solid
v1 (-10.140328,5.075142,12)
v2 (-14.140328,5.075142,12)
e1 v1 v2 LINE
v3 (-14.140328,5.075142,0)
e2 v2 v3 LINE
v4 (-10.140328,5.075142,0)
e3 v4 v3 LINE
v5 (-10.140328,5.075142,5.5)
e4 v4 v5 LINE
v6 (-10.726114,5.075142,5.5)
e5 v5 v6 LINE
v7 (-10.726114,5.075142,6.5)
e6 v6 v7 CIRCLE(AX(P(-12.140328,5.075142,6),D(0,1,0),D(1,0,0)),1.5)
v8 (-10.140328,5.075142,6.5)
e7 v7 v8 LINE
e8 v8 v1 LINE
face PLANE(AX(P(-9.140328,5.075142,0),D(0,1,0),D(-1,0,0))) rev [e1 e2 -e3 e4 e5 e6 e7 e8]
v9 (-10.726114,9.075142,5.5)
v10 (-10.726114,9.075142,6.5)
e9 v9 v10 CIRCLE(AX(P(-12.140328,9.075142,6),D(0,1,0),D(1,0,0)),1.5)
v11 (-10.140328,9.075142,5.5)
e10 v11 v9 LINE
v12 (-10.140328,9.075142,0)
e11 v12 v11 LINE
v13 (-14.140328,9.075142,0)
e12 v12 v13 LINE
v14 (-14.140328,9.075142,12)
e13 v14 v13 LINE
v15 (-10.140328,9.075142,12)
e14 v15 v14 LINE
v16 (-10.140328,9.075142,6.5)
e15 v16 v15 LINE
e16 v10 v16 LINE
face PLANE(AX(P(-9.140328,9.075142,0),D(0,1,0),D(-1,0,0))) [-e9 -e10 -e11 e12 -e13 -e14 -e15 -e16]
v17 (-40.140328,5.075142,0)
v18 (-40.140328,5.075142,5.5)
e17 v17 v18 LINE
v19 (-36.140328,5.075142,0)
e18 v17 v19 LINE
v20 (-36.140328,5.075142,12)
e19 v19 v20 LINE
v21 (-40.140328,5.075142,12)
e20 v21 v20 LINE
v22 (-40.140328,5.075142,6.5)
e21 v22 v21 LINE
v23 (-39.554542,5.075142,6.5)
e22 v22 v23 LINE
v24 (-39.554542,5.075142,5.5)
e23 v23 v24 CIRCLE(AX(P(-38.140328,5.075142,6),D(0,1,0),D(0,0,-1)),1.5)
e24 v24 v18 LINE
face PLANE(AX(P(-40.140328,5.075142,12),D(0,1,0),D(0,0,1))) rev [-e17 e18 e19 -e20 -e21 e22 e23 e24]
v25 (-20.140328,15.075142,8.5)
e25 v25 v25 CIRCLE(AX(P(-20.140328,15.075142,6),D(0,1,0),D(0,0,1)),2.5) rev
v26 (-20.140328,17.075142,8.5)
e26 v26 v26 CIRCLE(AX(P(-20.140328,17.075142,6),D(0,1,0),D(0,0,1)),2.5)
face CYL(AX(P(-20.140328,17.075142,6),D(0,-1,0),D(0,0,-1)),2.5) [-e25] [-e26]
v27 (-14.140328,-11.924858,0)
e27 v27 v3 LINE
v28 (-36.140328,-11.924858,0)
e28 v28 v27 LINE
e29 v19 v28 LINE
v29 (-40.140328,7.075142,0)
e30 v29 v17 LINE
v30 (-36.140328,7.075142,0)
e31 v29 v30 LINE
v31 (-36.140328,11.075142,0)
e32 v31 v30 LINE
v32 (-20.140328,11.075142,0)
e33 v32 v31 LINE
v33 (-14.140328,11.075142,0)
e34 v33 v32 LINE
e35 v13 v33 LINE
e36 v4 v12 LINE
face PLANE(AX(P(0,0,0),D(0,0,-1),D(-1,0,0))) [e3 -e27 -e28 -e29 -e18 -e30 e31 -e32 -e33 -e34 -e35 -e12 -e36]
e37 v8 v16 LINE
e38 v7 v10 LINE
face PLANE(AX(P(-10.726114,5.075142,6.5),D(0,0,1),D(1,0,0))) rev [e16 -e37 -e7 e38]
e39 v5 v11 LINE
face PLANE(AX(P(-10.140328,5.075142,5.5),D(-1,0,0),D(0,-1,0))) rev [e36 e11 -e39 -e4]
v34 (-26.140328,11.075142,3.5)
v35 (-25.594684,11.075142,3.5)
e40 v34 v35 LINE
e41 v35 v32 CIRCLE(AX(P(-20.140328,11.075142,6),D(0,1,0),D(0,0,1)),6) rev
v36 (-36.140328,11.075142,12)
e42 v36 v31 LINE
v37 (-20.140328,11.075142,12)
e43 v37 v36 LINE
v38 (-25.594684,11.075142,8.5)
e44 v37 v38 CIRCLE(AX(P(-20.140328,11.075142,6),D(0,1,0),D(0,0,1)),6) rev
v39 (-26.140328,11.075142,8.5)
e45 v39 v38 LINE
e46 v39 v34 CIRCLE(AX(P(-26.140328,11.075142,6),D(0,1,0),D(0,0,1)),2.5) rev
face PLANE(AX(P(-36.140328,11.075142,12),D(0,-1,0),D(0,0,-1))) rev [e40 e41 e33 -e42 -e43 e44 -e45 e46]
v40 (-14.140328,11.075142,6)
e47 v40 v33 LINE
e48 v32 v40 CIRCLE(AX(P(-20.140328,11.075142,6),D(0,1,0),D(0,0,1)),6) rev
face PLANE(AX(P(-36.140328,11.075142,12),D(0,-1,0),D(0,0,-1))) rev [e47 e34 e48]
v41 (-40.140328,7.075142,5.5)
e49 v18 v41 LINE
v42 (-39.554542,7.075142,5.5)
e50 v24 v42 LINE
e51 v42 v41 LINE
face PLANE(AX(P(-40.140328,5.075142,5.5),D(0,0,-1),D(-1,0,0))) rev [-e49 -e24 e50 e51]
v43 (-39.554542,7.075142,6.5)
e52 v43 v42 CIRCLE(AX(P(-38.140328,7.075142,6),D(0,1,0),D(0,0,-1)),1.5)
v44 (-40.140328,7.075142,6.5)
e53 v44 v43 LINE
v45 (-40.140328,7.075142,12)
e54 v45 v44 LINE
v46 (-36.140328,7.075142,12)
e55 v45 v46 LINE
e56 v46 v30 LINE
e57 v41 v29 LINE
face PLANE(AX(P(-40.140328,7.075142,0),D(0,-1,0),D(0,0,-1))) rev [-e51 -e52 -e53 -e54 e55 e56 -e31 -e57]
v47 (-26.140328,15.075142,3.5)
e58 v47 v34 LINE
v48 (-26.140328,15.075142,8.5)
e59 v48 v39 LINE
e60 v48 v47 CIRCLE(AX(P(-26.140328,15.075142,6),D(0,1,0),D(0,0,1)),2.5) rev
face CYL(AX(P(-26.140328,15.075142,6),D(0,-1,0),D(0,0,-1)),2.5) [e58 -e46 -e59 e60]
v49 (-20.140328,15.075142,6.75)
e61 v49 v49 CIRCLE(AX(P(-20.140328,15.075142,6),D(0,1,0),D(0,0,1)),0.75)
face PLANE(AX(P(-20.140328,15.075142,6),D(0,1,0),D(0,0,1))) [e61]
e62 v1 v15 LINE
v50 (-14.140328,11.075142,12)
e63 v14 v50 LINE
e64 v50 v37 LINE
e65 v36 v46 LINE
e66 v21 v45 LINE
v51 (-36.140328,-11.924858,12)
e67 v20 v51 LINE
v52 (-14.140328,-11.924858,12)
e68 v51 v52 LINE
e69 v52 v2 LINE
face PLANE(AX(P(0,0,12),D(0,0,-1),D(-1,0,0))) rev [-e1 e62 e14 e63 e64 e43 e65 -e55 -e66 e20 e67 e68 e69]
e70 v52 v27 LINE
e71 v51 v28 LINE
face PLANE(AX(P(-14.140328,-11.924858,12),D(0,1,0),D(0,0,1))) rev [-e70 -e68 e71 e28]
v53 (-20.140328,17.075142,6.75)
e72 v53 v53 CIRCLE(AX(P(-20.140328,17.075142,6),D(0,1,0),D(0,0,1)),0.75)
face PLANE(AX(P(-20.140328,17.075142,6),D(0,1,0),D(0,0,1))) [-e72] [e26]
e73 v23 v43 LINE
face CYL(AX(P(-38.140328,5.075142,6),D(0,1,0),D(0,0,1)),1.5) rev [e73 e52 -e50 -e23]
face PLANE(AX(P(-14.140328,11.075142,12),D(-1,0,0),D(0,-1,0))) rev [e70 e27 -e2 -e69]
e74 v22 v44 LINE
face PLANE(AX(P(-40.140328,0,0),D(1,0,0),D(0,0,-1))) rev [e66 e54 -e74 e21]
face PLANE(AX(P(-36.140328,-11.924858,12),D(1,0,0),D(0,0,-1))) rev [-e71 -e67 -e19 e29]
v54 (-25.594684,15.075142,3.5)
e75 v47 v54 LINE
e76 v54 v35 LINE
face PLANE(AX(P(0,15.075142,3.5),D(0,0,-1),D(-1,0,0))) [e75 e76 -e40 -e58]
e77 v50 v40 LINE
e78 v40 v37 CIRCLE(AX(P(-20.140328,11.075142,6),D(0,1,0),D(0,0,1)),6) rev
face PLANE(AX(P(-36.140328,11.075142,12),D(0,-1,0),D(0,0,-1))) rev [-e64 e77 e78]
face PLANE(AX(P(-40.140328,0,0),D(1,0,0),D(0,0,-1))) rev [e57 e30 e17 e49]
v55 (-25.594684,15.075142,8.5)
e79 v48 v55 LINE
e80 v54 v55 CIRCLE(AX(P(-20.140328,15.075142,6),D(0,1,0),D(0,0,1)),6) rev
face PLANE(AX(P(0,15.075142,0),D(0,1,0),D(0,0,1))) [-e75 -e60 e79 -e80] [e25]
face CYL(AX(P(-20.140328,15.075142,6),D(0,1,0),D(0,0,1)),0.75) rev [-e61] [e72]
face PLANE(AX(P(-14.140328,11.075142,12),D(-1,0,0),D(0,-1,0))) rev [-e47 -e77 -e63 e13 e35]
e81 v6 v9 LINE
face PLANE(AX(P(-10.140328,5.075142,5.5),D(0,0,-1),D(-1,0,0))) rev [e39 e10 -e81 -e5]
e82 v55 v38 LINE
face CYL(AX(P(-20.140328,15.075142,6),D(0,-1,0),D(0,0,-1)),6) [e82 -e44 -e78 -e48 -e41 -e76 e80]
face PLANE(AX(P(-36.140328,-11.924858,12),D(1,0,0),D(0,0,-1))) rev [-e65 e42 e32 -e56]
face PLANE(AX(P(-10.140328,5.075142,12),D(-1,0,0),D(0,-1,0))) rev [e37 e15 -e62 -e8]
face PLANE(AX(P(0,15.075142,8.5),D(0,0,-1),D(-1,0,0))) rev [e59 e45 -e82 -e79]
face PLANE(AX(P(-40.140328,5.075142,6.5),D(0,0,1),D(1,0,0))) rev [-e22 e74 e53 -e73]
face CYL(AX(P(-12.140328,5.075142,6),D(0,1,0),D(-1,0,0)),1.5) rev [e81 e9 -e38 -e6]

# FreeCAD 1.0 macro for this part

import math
import FreeCAD as App
import Part
import Sketcher

doc = App.newDocument("Part")
body = doc.addObject("PartDesign::Body", "Body")

# Sketch on XY plane
sketch1 = body.newObject("Sketcher::SketchObject", "Sketch")
sketch1.AttachmentSupport = (doc.getObject("XY_Plane"), [""])
sketch1.MapMode = "FlatFace"
sketch1.addGeometry(Part.LineSegment(App.Vector(-36, 11, 0), App.Vector(-36, -12, 0)), False)
sketch1.addGeometry(Part.LineSegment(App.Vector(-36, -12, 0), App.Vector(-14, -12, 0)), False)
sketch1.addGeometry(Part.LineSegment(App.Vector(-14, -12, 0), App.Vector(-14, 11, 0)), False)
sketch1.addGeometry(Part.LineSegment(App.Vector(-14, 11, 0), App.Vector(-36, 11, 0)), False)
sketch1.addConstraint(Sketcher.Constraint("Coincident", 0, 2, 1, 1))
sketch1.addConstraint(Sketcher.Constraint("Coincident", 1, 2, 2, 1))
sketch1.addConstraint(Sketcher.Constraint("Coincident", 2, 2, 3, 1))
sketch1.addConstraint(Sketcher.Constraint("Coincident", 3, 2, 0, 1))
sketch1.addConstraint(Sketcher.Constraint("Vertical", 0))
sketch1.addConstraint(Sketcher.Constraint("Horizontal", 1))
sketch1.addConstraint(Sketcher.Constraint("Vertical", 2))
sketch1.addConstraint(Sketcher.Constraint("Horizontal", 3))
sketch1.addConstraint(Sketcher.Constraint("DistanceX", 1, 1, 1, 2, 22.0))
sketch1.addConstraint(Sketcher.Constraint("DistanceY", 0, 2, 0, 1, 23.0))
sketch1.addConstraint(Sketcher.Constraint("DistanceX", 0, 2, -1, 1, 36.140328))
sketch1.addConstraint(Sketcher.Constraint("DistanceY", 0, 2, -1, 1, 11.924858))
pad1 = body.newObject("PartDesign::Pad", "Pad")
pad1.Profile = sketch1
pad1.Length = 12

# Sketch on YZ plane
sketch2 = body.newObject("Sketcher::SketchObject", "Sketch001")
sketch2.AttachmentSupport = (doc.getObject("YZ_Plane"), [""])
sketch2.MapMode = "FlatFace"
sketch2.AttachmentOffset = App.Placement(App.Vector(0, 0, -14.140328), App.Rotation())
sketch2.addGeometry(Part.LineSegment(App.Vector(7.1, 12, 0), App.Vector(5.1, 12, 0)), False)
sketch2.addGeometry(Part.LineSegment(App.Vector(5.1, 12, 0), App.Vector(5.1, 0, 0)), False)
sketch2.addGeometry(Part.LineSegment(App.Vector(5.1, 0, 0), App.Vector(7.1, 0, 0)), False)
sketch2.addGeometry(Part.LineSegment(App.Vector(7.1, 0, 0), App.Vector(7.1, 12, 0)), False)
sketch2.addConstraint(Sketcher.Constraint("Coincident", 0, 2, 1, 1))
sketch2.addConstraint(Sketcher.Constraint("Coincident", 1, 2, 2, 1))
sketch2.addConstraint(Sketcher.Constraint("Coincident", 2, 2, 3, 1))
sketch2.addConstraint(Sketcher.Constraint("Coincident", 3, 2, 0, 1))
sketch2.addConstraint(Sketcher.Constraint("Horizontal", 0))
sketch2.addConstraint(Sketcher.Constraint("Vertical", 1))
sketch2.addConstraint(Sketcher.Constraint("Horizontal", 2))
sketch2.addConstraint(Sketcher.Constraint("Vertical", 3))
sketch2.addConstraint(Sketcher.Constraint("PointOnObject", 1, 2, -1))
sketch2.addConstraint(Sketcher.Constraint("DistanceX", 0, 2, 0, 1, 2.0))
sketch2.addConstraint(Sketcher.Constraint("DistanceY", 1, 2, 1, 1, 12.0))
sketch2.addConstraint(Sketcher.Constraint("DistanceX", -1, 1, 0, 2, 5.075142))
pad2 = body.newObject("PartDesign::Pad", "Pad001")
pad2.Profile = sketch2
pad2.Length = 5

# Sketch on XZ plane
sketch3 = body.newObject("Sketcher::SketchObject", "Sketch002")
sketch3.AttachmentSupport = (doc.getObject("XZ_Plane"), [""])
sketch3.MapMode = "FlatFace"
sketch3.AttachmentOffset = App.Placement(App.Vector(0, 0, -7.075142), App.Rotation())
sketch3.addGeometry(Part.LineSegment(App.Vector(-10.1, 5.5, 0), App.Vector(-10.7, 5.5, 0)), False)
sketch3.addGeometry(Part.ArcOfCircle(Part.Circle(App.Vector(-12.1, 6, 0), App.Vector(0, 0, 1), 1.5), math.radians(19), math.radians(341)), False)
sketch3.addGeometry(Part.LineSegment(App.Vector(-10.7, 6.5, 0), App.Vector(-10.1, 6.5, 0)), False)
sketch3.addGeometry(Part.LineSegment(App.Vector(-10.1, 6.5, 0), App.Vector(-10.1, 12, 0)), False)
sketch3.addGeometry(Part.LineSegment(App.Vector(-10.1, 12, 0), App.Vector(-9.1, 12, 0)), False)
sketch3.addGeometry(Part.LineSegment(App.Vector(-9.1, 12, 0), App.Vector(-9.1, 0, 0)), False)
sketch3.addGeometry(Part.LineSegment(App.Vector(-9.1, 0, 0), App.Vector(-10.1, 0, 0)), False)
sketch3.addGeometry(Part.LineSegment(App.Vector(-10.1, 0, 0), App.Vector(-10.1, 5.5, 0)), False)
sketch3.addConstraint(Sketcher.Constraint("Coincident", 0, 2, 1, 2))
sketch3.addConstraint(Sketcher.Constraint("Coincident", 1, 1, 2, 1))
sketch3.addConstraint(Sketcher.Constraint("Coincident", 2, 2, 3, 1))
sketch3.addConstraint(Sketcher.Constraint("Coincident", 3, 2, 4, 1))
sketch3.addConstraint(Sketcher.Constraint("Coincident", 4, 2, 5, 1))
sketch3.addConstraint(Sketcher.Constraint("Coincident", 5, 2, 6, 1))
sketch3.addConstraint(Sketcher.Constraint("Coincident", 6, 2, 7, 1))
sketch3.addConstraint(Sketcher.Constraint("Coincident", 7, 2, 0, 1))
sketch3.addConstraint(Sketcher.Constraint("Horizontal", 0))
sketch3.addConstraint(Sketcher.Constraint("Horizontal", 2))
sketch3.addConstraint(Sketcher.Constraint("Vertical", 3))
sketch3.addConstraint(Sketcher.Constraint("Horizontal", 4))
sketch3.addConstraint(Sketcher.Constraint("Vertical", 5))
sketch3.addConstraint(Sketcher.Constraint("Horizontal", 6))
sketch3.addConstraint(Sketcher.Constraint("Vertical", 7))
sketch3.addConstraint(Sketcher.Constraint("PointOnObject", 5, 2, -1))
sketch3.addConstraint(Sketcher.Constraint("Vertical", 0, 2, 1, 1))
sketch3.addConstraint(Sketcher.Constraint("Vertical", 3, 2, 6, 2))
sketch3.addConstraint(Sketcher.Constraint("Equal", 3, 7))
sketch3.addConstraint(Sketcher.Constraint("Radius", 1, 1.5))
sketch3.addConstraint(Sketcher.Constraint("DistanceX", 4, 1, 4, 2, 1.0))
sketch3.addConstraint(Sketcher.Constraint("DistanceY", 5, 2, 5, 1, 12.0))
sketch3.addConstraint(Sketcher.Constraint("DistanceY", 3, 1, 3, 2, 5.5))
sketch3.addConstraint(Sketcher.Constraint("DistanceX", 1, 3, 2, 2, 2.0))
sketch3.addConstraint(Sketcher.Constraint("DistanceX", 1, 3, -1, 1, 12.140328))
pocket1 = body.newObject("PartDesign::Pocket", "Pocket")
pocket1.Profile = sketch3
pocket1.Length = 2
pocket1.Reversed = True
doc.recompute()

datumplane = body.newObject("PartDesign::Plane", "DatumPlane")
datumplane.AttachmentSupport = (doc.getObject("XZ_Plane"), [""])
datumplane.MapMode = "FlatFace"
datumplane.AttachmentOffset = App.Placement(App.Vector(0, 0, -7.075142), App.Rotation())
mirrored = body.newObject("PartDesign::Mirrored", "Mirrored")
mirrored.Originals = [pad2, pocket1]
mirrored.MirrorPlane = (datumplane, [""])
body.Tip = mirrored

# Sketch on YZ plane
sketch4 = body.newObject("Sketcher::SketchObject", "Sketch003")
sketch4.AttachmentSupport = (doc.getObject("YZ_Plane"), [""])
sketch4.MapMode = "FlatFace"
sketch4.AttachmentOffset = App.Placement(App.Vector(0, 0, -36.140328), App.Rotation())
sketch4.addGeometry(Part.LineSegment(App.Vector(7.1, 0, 0), App.Vector(5.1, 0, 0)), False)
sketch4.addGeometry(Part.LineSegment(App.Vector(5.1, 0, 0), App.Vector(5.1, 12, 0)), False)
sketch4.addGeometry(Part.LineSegment(App.Vector(5.1, 12, 0), App.Vector(7.1, 12, 0)), False)
sketch4.addGeometry(Part.LineSegment(App.Vector(7.1, 12, 0), App.Vector(7.1, 0, 0)), False)
sketch4.addConstraint(Sketcher.Constraint("Coincident", 0, 2, 1, 1))
sketch4.addConstraint(Sketcher.Constraint("Coincident", 1, 2, 2, 1))
sketch4.addConstraint(Sketcher.Constraint("Coincident", 2, 2, 3, 1))
sketch4.addConstraint(Sketcher.Constraint("Coincident", 3, 2, 0, 1))
sketch4.addConstraint(Sketcher.Constraint("Horizontal", 0))
sketch4.addConstraint(Sketcher.Constraint("Vertical", 1))
sketch4.addConstraint(Sketcher.Constraint("Horizontal", 2))
sketch4.addConstraint(Sketcher.Constraint("Vertical", 3))
sketch4.addConstraint(Sketcher.Constraint("PointOnObject", 0, 2, -1))
sketch4.addConstraint(Sketcher.Constraint("DistanceX", 0, 2, 0, 1, 2.0))
sketch4.addConstraint(Sketcher.Constraint("DistanceY", 1, 1, 1, 2, 12.0))
sketch4.addConstraint(Sketcher.Constraint("DistanceX", -1, 1, 0, 2, 5.075142))
pad3 = body.newObject("PartDesign::Pad", "Pad002")
pad3.Profile = sketch4
pad3.Length = 4
pad3.Reversed = True

# Sketch on XZ plane
sketch5 = body.newObject("Sketcher::SketchObject", "Sketch004")
sketch5.AttachmentSupport = (doc.getObject("XZ_Plane"), [""])
sketch5.MapMode = "FlatFace"
sketch5.AttachmentOffset = App.Placement(App.Vector(0, 0, -7.075142), App.Rotation())
sketch5.addGeometry(Part.LineSegment(App.Vector(-40.1, 5.5, 0), App.Vector(-40.1, 6.5, 0)), False)
sketch5.addGeometry(Part.LineSegment(App.Vector(-40.1, 6.5, 0), App.Vector(-39.6, 6.5, 0)), False)
sketch5.addGeometry(Part.ArcOfCircle(Part.Circle(App.Vector(-38.1, 6, 0), App.Vector(0, 0, 1), 1.5), math.radians(-161), math.radians(161)), False)
sketch5.addGeometry(Part.LineSegment(App.Vector(-39.6, 5.5, 0), App.Vector(-40.1, 5.5, 0)), False)
sketch5.addConstraint(Sketcher.Constraint("Coincident", 0, 2, 1, 1))
sketch5.addConstraint(Sketcher.Constraint("Coincident", 1, 2, 2, 2))
sketch5.addConstraint(Sketcher.Constraint("Coincident", 2, 1, 3, 1))
sketch5.addConstraint(Sketcher.Constraint("Coincident", 3, 2, 0, 1))
sketch5.addConstraint(Sketcher.Constraint("Vertical", 0))
sketch5.addConstraint(Sketcher.Constraint("Horizontal", 1))
sketch5.addConstraint(Sketcher.Constraint("Horizontal", 3))
sketch5.addConstraint(Sketcher.Constraint("Vertical", 1, 2, 2, 1))
sketch5.addConstraint(Sketcher.Constraint("Radius", 2, 1.5))
sketch5.addConstraint(Sketcher.Constraint("DistanceY", 0, 1, 0, 2, 1.0))
sketch5.addConstraint(Sketcher.Constraint("DistanceY", -1, 1, 2, 3, 6.0))
sketch5.addConstraint(Sketcher.Constraint("DistanceX", 0, 2, 2, 3, 2.0))
sketch5.addConstraint(Sketcher.Constraint("DistanceX", 1, 2, -1, 1, 39.554542))
pocket2 = body.newObject("PartDesign::Pocket", "Pocket001")
pocket2.Profile = sketch5
pocket2.Length = 2
pocket2.Reversed = True

# Sketch on XZ plane
sketch6 = body.newObject("Sketcher::SketchObject", "Sketch005")
sketch6.AttachmentSupport = (doc.getObject("XZ_Plane"), [""])
sketch6.MapMode = "FlatFace"
sketch6.AttachmentOffset = App.Placement(App.Vector(0, 0, -11.075142), App.Rotation())
sketch6.addGeometry(Part.ArcOfCircle(Part.Circle(App.Vector(-20.1, 6, 0), App.Vector(0, 0, 1), 6), math.radians(-155), math.radians(155)), False)
sketch6.addGeometry(Part.LineSegment(App.Vector(-25.6, 3.5, 0), App.Vector(-26.1, 3.5, 0)), False)
sketch6.addGeometry(Part.ArcOfCircle(Part.Circle(App.Vector(-26.1, 6, 0), App.Vector(0, 0, 1), 2.5), math.radians(90), math.radians(270)), False)
sketch6.addGeometry(Part.LineSegment(App.Vector(-26.1, 8.5, 0), App.Vector(-25.6, 8.5, 0)), False)
sketch6.addConstraint(Sketcher.Constraint("Coincident", 0, 1, 1, 1))
sketch6.addConstraint(Sketcher.Constraint("Tangent", 1, 2, 2, 2))
sketch6.addConstraint(Sketcher.Constraint("Tangent", 2, 1, 3, 1))
sketch6.addConstraint(Sketcher.Constraint("Coincident", 3, 2, 0, 2))
sketch6.addConstraint(Sketcher.Constraint("Horizontal", 1))
sketch6.addConstraint(Sketcher.Constraint("Horizontal", 3))
sketch6.addConstraint(Sketcher.Constraint("Horizontal", 0, 3, 2, 3))
sketch6.addConstraint(Sketcher.Constraint("Radius", 0, 6.0))
sketch6.addConstraint(Sketcher.Constraint("Radius", 2, 2.5))
sketch6.addConstraint(Sketcher.Constraint("DistanceY", -1, 1, 0, 3, 6.0))
sketch6.addConstraint(Sketcher.Constraint("DistanceX", 2, 3, 0, 3, 6.0))
sketch6.addConstraint(Sketcher.Constraint("DistanceX", 0, 3, -1, 1, 20.140328))
pad4 = body.newObject("PartDesign::Pad", "Pad003")
pad4.Profile = sketch6
pad4.Length = 4
pad4.Reversed = True

# Sketch on XZ plane
sketch7 = body.newObject("Sketcher::SketchObject", "Sketch006")
sketch7.AttachmentSupport = (doc.getObject("XZ_Plane"), [""])
sketch7.MapMode = "FlatFace"
sketch7.AttachmentOffset = App.Placement(App.Vector(0, 0, -11.075142), App.Rotation())
sketch7.addGeometry(Part.Circle(App.Vector(-20.1, 6, 0), App.Vector(0, 0, 1), 2.5), False)
sketch7.addConstraint(Sketcher.Constraint("Diameter", 0, 5.0))
sketch7.addConstraint(Sketcher.Constraint("DistanceY", -1, 1, 0, 3, 6.0))
sketch7.addConstraint(Sketcher.Constraint("DistanceX", 0, 3, -1, 1, 20.140328))
pad5 = body.newObject("PartDesign::Pad", "Pad004")
pad5.Profile = sketch7
pad5.Length = 6
pad5.Reversed = True

# Sketch on XZ plane
sketch8 = body.newObject("Sketcher::SketchObject", "Sketch007")
sketch8.AttachmentSupport = (doc.getObject("XZ_Plane"), [""])
sketch8.MapMode = "FlatFace"
sketch8.AttachmentOffset = App.Placement(App.Vector(0, 0, -17.075142), App.Rotation())
sketch8.addGeometry(Part.Circle(App.Vector(-20.1, 6, 0), App.Vector(0, 0, 1), 0.8), False)
sketch8.addConstraint(Sketcher.Constraint("Diameter", 0, 1.5))
sketch8.addConstraint(Sketcher.Constraint("DistanceY", -1, 1, 0, 3, 6.0))
sketch8.addConstraint(Sketcher.Constraint("DistanceX", 0, 3, -1, 1, 20.140328))
pocket3 = body.newObject("PartDesign::Pocket", "Pocket002")
pocket3.Profile = sketch8
pocket3.Length = 2
pocket3.Reversed = True

doc.recompute()
